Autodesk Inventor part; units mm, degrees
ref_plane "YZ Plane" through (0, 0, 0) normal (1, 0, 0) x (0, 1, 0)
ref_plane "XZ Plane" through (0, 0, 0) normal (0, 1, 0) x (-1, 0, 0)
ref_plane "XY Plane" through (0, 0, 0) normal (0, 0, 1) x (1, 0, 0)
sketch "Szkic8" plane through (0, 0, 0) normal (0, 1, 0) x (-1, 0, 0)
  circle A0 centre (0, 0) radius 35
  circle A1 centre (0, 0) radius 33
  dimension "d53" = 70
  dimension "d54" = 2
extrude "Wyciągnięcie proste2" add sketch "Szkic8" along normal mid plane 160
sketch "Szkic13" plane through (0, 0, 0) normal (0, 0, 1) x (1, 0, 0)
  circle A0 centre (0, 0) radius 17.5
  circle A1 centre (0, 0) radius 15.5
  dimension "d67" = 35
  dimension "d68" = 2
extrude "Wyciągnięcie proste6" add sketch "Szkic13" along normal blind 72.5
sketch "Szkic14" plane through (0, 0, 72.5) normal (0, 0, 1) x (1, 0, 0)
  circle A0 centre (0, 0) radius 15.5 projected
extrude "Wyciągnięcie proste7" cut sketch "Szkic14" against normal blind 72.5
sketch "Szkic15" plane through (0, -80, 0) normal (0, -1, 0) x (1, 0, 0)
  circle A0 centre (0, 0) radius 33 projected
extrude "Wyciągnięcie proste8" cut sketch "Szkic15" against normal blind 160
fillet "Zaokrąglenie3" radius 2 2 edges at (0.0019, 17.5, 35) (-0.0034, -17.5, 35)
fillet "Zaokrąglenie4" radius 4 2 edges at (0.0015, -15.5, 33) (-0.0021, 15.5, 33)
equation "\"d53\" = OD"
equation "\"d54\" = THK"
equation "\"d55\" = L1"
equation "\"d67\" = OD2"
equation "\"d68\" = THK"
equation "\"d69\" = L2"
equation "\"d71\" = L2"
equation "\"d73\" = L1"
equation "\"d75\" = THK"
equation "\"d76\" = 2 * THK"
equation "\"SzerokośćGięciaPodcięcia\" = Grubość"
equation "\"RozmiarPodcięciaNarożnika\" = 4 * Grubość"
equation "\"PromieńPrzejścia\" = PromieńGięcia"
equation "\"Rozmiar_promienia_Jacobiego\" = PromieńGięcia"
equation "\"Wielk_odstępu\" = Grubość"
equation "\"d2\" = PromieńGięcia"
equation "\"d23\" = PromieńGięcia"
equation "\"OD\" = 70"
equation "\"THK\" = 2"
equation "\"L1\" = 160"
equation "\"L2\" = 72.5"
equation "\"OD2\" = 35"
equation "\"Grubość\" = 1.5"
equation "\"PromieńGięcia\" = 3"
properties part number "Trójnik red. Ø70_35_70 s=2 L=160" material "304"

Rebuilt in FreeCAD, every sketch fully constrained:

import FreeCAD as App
import Part
import Sketcher

V = App.Vector
Q = App.Units.Quantity


def edges_at(feature, points):
    """Names of the edges that pass closest to the given points."""
    edges = feature.Shape.Edges
    near = lambda p: min(range(len(edges)), key=lambda i: edges[i].distToShape(Part.Vertex(*p))[0])
    return sorted({f"Edge{near(p) + 1}" for p in points})

doc = App.newDocument("Part")
body = doc.addObject("PartDesign::Body", "Body")

sketch1 = doc.addObject("Sketcher::SketchObject", "Sketch")
body.addObject(sketch1)
sketch1.AttachmentSupport = (doc.XZ_Plane, [""])
sketch1.MapMode = "FlatFace"
sketch1.addGeometry(Part.Circle(V(0, 0, 0), V(0, 0, 1), 35), False)
sketch1.addGeometry(Part.Circle(V(0, 0, 0), V(0, 0, 1), 33), False)
sketch1.addConstraint(Sketcher.Constraint("Coincident", 0, 3, -1, 1))
sketch1.addConstraint(Sketcher.Constraint("Coincident", 1, 3, -1, 1))
sketch1.addConstraint(Sketcher.Constraint("Diameter", 0, Q("70 mm")))
sketch1.addConstraint(Sketcher.Constraint("Diameter", 1, Q("66 mm")))
pad1 = doc.addObject("PartDesign::Pad", "Pad")
body.addObject(pad1)
pad1.Profile = sketch1
pad1.Length = 160
pad1.Midplane = True

sketch2 = doc.addObject("Sketcher::SketchObject", "Sketch001")
body.addObject(sketch2)
sketch2.AttachmentSupport = (doc.XY_Plane, [""])
sketch2.MapMode = "FlatFace"
sketch2.addGeometry(Part.Circle(V(0, 0, 0), V(0, 0, 1), 18), False)
sketch2.addGeometry(Part.Circle(V(0, 0, 0), V(0, 0, 1), 16), False)
sketch2.addConstraint(Sketcher.Constraint("Coincident", 0, 3, -1, 1))
sketch2.addConstraint(Sketcher.Constraint("Coincident", 1, 3, -1, 1))
sketch2.addConstraint(Sketcher.Constraint("Diameter", 0, Q("35 mm")))
sketch2.addConstraint(Sketcher.Constraint("Diameter", 1, Q("31 mm")))
pad2 = doc.addObject("PartDesign::Pad", "Pad001")
body.addObject(pad2)
pad2.Profile = sketch2
pad2.Length = 72.5

sketch3 = doc.addObject("Sketcher::SketchObject", "Sketch002")
body.addObject(sketch3)
sketch3.AttachmentSupport = (doc.XY_Plane, [""])
sketch3.MapMode = "FlatFace"
sketch3.AttachmentOffset = App.Placement(V(0, 0, 72.5), App.Rotation())
sketch3.addGeometry(Part.Circle(V(0, 0, 0), V(0, 0, 1), 16), False)
sketch3.addConstraint(Sketcher.Constraint("Coincident", 0, 3, -1, 1))
sketch3.addConstraint(Sketcher.Constraint("Diameter", 0, Q("31 mm")))
pocket1 = doc.addObject("PartDesign::Pocket", "Pocket")
body.addObject(pocket1)
pocket1.Profile = sketch3
pocket1.Length = 72.5

sketch4 = doc.addObject("Sketcher::SketchObject", "Sketch003")
body.addObject(sketch4)
sketch4.AttachmentSupport = (doc.XZ_Plane, [""])
sketch4.MapMode = "FlatFace"
sketch4.AttachmentOffset = App.Placement(V(0, 0, 80), App.Rotation())
sketch4.addGeometry(Part.Circle(V(0, 0, 0), V(0, 0, 1), 33), False)
sketch4.addConstraint(Sketcher.Constraint("Coincident", 0, 3, -1, 1))
sketch4.addConstraint(Sketcher.Constraint("Diameter", 0, Q("66 mm")))
pocket2 = doc.addObject("PartDesign::Pocket", "Pocket001")
body.addObject(pocket2)
pocket2.Profile = sketch4
pocket2.Length = 160
doc.recompute()

fillet = doc.addObject("PartDesign::Fillet", "Fillet")
body.addObject(fillet)
fillet.Base = (pocket2, edges_at(pocket2, [(0.002, 17.5, 35), (-0.003, -17.5, 35)]))
fillet.Radius = 2
doc.recompute()

fillet2 = doc.addObject("PartDesign::Fillet", "Fillet001")
body.addObject(fillet2)
fillet2.Base = (fillet, edges_at(fillet, [(0.002, -15.5, 33), (-0.002, 15.5, 33)]))
fillet2.Radius = 4

doc.recompute()
